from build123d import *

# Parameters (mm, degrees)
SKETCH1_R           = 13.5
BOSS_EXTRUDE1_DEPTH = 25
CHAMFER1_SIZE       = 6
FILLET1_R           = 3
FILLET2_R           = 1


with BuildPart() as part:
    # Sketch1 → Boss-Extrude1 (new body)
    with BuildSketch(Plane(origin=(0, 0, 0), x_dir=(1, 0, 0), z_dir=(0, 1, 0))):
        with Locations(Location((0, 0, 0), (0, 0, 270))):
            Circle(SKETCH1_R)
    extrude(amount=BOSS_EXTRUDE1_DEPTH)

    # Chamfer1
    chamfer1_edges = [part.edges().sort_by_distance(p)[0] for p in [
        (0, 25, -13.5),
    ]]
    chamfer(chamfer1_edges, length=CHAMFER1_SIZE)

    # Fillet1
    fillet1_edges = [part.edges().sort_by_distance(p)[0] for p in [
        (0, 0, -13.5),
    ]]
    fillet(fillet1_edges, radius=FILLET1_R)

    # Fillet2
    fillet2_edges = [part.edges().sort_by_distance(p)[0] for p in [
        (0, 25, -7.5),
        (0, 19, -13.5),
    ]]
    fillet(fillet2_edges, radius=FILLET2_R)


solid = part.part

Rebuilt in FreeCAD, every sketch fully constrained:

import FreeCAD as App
import Part
import Sketcher

V = App.Vector


def edges_at(feature, points):
    """Names of the edges that pass closest to the given points."""
    edges = feature.Shape.Edges
    near = lambda p: min(range(len(edges)), key=lambda i: edges[i].distToShape(Part.Vertex(*p))[0])
    return sorted({f"Edge{near(p) + 1}" for p in points})

doc = App.newDocument("Part")
body = doc.addObject("PartDesign::Body", "Body")

# Sketch on XZ plane
sketch1 = doc.addObject("Sketcher::SketchObject", "Sketch")
body.addObject(sketch1)
sketch1.AttachmentSupport = (doc.XZ_Plane, [""])
sketch1.MapMode = "FlatFace"
sketch1.addGeometry(Part.Circle(V(0, 0, 0), V(0, 0, 1), 13.5), False)
sketch1.addConstraint(Sketcher.Constraint("Coincident", 0, 3, -1, 1))
sketch1.addConstraint(Sketcher.Constraint("Diameter", 0, 27.0))
pad1 = doc.addObject("PartDesign::Pad", "Pad")
body.addObject(pad1)
pad1.Profile = sketch1
pad1.Length = 25
pad1.Reversed = True
doc.recompute()

chamfer = doc.addObject("PartDesign::Chamfer", "Chamfer")
body.addObject(chamfer)
chamfer.Base = (pad1, edges_at(pad1, [(0, 25, -13.5)]))
chamfer.Size = 6
doc.recompute()

fillet = doc.addObject("PartDesign::Fillet", "Fillet")
body.addObject(fillet)
fillet.Base = (chamfer, edges_at(chamfer, [(0, 0, -13.5)]))
fillet.Radius = 3
doc.recompute()

fillet2 = doc.addObject("PartDesign::Fillet", "Fillet001")
body.addObject(fillet2)
fillet2.Base = (fillet, edges_at(fillet, [(0, 25, -7.5), (0, 19, -13.5)]))
fillet2.Radius = 1

doc.recompute()
